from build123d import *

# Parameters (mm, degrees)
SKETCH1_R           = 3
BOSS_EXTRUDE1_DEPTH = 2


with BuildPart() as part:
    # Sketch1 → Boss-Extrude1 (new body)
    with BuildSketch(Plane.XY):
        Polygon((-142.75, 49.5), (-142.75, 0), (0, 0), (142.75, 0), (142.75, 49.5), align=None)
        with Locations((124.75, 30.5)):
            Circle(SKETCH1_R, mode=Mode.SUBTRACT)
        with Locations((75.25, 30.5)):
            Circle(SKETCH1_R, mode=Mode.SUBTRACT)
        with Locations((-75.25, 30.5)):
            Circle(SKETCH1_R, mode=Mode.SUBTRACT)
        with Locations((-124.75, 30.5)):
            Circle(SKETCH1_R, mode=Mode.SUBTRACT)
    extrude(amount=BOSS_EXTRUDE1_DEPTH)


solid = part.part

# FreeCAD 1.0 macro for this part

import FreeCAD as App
import Part
import Sketcher
from FreeCAD import Vector
Q = App.Units.Quantity


def add_polygon(sketch, points):
    """Adds a closed chain of lines whose ends are joined by coincident constraints."""
    first, n = sketch.GeometryCount, len(points)
    for a, b in zip(points, points[1:] + points[:1]):
        sketch.addGeometry(Part.LineSegment(App.Vector(*a, 0), App.Vector(*b, 0)), False)
    for i in range(n):
        sketch.addConstraint(Sketcher.Constraint("Coincident", first + i, 2, first + (i + 1) % n, 1))

doc = App.newDocument("Part")
body = doc.addObject("PartDesign::Body", "Body")

sketch1 = body.newObject("Sketcher::SketchObject", "Sketch")
sketch1.AttachmentSupport = (doc.getObject("XY_Plane"), [""])
sketch1.MapMode = "FlatFace"
add_polygon(sketch1, [(-142.75, 49.5), (-142.75, 0), (142.75, 0), (142.75, 49.5)])
sketch1.addGeometry(Part.Circle(Vector(-124.75, 30.5, 0), Vector(0, 0, 1), 3), False)
sketch1.addGeometry(Part.Circle(Vector(-75.25, 30.5, 0), Vector(0, 0, 1), 3), False)
sketch1.addGeometry(Part.Circle(Vector(75.25, 30.5, 0), Vector(0, 0, 1), 3), False)
sketch1.addGeometry(Part.Circle(Vector(124.75, 30.5, 0), Vector(0, 0, 1), 3), False)
sketch1.addConstraint([
    Sketcher.Constraint("Vertical", 0),
    Sketcher.Constraint("Horizontal", 1),
    Sketcher.Constraint("Vertical", 2),
    Sketcher.Constraint("Horizontal", 3),
    Sketcher.Constraint("Equal", 4, 5),
    Sketcher.Constraint("Equal", 5, 6),
    Sketcher.Constraint("Equal", 6, 7),
    Sketcher.Constraint("Symmetric", 0, 2, 1, 2, -1, 1),
    Sketcher.Constraint("Symmetric", 5, 3, 6, 3, -2),
    Sketcher.Constraint("Symmetric", 4, 3, 7, 3, -2),
    Sketcher.Constraint("Horizontal", 4, 3, 5, 3),
    Sketcher.Constraint("Diameter", 4, Q("6 mm")),
    Sketcher.Constraint("DistanceX", 1, 1, 1, 2, Q("285.5 mm")),
    Sketcher.Constraint("DistanceY", 0, 2, 0, 1, Q("49.5 mm")),
    Sketcher.Constraint("DistanceX", 4, 3, 6, 3, Q("200 mm")),
    Sketcher.Constraint("DistanceX", 0, 2, 4, 3, Q("18 mm")),
    Sketcher.Constraint("DistanceY", 7, 3, 2, 2, Q("19 mm")),
])
pad1 = body.newObject("PartDesign::Pad", "Pad")
pad1.Profile = sketch1
pad1.Length = 2

doc.recompute()
